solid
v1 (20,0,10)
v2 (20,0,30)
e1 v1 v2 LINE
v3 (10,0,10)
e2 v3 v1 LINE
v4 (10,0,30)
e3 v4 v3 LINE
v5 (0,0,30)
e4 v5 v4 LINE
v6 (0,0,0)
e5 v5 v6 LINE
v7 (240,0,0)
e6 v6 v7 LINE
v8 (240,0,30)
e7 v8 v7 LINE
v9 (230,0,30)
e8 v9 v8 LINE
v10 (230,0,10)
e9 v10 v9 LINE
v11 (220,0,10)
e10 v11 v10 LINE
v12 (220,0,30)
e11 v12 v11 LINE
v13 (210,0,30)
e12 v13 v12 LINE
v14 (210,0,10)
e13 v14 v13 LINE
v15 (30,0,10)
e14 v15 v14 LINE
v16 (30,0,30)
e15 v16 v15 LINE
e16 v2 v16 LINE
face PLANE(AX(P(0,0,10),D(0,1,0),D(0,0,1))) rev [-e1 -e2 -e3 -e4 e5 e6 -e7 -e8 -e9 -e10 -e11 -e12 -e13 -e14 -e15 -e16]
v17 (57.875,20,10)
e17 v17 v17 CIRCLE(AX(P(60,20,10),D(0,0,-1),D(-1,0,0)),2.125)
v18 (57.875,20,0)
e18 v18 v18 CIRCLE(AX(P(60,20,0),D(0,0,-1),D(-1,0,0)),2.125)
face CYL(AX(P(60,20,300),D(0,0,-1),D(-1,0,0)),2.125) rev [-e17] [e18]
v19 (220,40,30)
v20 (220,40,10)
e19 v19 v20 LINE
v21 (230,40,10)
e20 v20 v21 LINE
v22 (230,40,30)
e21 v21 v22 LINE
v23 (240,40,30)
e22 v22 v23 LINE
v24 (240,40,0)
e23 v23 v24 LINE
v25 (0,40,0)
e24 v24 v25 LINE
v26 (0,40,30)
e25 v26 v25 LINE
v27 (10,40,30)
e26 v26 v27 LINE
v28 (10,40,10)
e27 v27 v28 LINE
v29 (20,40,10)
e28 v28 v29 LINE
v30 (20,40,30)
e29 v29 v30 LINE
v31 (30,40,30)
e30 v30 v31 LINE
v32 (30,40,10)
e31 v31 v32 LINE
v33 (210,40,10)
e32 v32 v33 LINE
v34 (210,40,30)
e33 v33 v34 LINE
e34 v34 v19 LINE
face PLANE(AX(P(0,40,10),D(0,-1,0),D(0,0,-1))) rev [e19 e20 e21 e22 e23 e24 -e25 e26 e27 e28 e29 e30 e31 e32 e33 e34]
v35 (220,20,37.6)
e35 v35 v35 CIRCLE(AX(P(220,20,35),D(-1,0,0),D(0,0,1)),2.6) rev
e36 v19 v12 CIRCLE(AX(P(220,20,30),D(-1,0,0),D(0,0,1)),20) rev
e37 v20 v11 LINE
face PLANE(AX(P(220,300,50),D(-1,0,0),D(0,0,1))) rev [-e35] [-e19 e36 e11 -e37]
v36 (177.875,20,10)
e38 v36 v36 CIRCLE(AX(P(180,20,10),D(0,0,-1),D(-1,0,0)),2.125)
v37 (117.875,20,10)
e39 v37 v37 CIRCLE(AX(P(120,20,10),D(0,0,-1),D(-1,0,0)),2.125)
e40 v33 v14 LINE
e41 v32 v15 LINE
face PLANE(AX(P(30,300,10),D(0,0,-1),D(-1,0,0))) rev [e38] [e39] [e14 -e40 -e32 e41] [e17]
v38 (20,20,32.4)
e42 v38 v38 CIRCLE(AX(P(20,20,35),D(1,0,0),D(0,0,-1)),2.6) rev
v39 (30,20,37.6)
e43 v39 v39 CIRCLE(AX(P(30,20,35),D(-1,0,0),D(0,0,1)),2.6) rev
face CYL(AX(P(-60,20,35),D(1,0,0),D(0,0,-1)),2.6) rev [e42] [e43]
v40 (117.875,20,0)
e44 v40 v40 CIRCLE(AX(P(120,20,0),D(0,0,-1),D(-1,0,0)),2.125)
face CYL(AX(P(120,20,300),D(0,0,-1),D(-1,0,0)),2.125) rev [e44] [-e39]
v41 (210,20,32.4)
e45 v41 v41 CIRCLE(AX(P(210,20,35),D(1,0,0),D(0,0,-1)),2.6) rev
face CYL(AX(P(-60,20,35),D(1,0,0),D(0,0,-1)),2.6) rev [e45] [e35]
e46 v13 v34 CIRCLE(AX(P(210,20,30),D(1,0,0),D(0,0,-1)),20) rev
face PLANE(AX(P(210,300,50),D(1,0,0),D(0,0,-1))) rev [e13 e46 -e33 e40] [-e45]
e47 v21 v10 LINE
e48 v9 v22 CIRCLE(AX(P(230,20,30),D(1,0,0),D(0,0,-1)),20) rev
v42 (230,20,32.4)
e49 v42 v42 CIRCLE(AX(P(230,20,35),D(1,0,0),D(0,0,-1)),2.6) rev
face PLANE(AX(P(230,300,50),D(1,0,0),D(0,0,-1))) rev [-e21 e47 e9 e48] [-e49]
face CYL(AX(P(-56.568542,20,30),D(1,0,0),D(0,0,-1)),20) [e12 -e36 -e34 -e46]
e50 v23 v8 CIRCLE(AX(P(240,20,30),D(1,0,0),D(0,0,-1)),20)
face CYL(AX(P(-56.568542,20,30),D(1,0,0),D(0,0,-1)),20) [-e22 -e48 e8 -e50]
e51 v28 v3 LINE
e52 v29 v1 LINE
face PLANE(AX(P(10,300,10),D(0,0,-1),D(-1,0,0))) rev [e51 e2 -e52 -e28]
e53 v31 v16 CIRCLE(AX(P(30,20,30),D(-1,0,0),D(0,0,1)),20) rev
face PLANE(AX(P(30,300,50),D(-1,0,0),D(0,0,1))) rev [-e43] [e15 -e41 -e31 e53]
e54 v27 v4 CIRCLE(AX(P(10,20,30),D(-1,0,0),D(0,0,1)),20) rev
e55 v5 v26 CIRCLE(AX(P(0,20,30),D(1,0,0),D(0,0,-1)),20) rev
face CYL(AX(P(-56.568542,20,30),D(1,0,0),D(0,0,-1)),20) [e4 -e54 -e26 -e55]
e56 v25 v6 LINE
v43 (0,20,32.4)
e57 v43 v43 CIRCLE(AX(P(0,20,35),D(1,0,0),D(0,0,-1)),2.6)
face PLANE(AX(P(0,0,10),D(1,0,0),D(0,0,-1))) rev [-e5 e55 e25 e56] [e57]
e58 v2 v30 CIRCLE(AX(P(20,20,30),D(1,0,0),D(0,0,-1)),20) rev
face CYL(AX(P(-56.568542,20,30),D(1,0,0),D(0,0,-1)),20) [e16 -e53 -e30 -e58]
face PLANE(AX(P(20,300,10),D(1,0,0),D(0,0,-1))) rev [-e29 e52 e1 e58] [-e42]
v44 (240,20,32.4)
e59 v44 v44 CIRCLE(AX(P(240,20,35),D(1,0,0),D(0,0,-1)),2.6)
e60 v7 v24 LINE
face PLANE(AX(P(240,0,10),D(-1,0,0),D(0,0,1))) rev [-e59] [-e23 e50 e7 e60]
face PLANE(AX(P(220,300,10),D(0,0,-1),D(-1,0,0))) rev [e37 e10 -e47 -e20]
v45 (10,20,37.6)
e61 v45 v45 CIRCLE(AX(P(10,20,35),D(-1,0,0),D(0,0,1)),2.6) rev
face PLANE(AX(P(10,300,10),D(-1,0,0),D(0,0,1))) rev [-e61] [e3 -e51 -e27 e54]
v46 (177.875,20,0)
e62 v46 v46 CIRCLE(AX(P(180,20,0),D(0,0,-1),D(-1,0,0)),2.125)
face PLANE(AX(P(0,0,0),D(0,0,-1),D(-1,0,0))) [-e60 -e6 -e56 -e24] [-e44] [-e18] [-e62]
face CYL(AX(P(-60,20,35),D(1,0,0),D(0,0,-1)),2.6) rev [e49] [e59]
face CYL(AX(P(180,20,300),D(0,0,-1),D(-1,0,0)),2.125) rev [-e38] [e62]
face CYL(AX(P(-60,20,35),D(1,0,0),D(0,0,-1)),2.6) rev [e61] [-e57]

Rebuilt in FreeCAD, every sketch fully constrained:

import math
import FreeCAD as App
import Part
import Sketcher

V = App.Vector
Q = App.Units.Quantity

doc = App.newDocument("Part")
body = doc.addObject("PartDesign::Body", "Body")

sketch1 = doc.addObject("Sketcher::SketchObject", "Sketch")
body.addObject(sketch1)
sketch1.AttachmentSupport = (doc.XY_Plane, [""])
sketch1.MapMode = "FlatFace"
sketch1.addGeometry([
    Part.LineSegment(V(0, 40, 0), V(0, 0, 0)),
    Part.LineSegment(V(0, 0, 0), V(240, 0, 0)),
    Part.LineSegment(V(240, 0, 0), V(240, 40, 0)),
    Part.LineSegment(V(240, 40, 0), V(0, 40, 0)),
], False)
sketch1.addConstraint([
    Sketcher.Constraint("Coincident", 0, 2, 1, 1),
    Sketcher.Constraint("Coincident", 1, 2, 2, 1),
    Sketcher.Constraint("Coincident", 2, 2, 3, 1),
    Sketcher.Constraint("Coincident", 3, 2, 0, 1),
    Sketcher.Constraint("Vertical", 0),
    Sketcher.Constraint("Horizontal", 1),
    Sketcher.Constraint("Vertical", 2),
    Sketcher.Constraint("Horizontal", 3),
    Sketcher.Constraint("Coincident", 0, 2, -1, 1),
    Sketcher.Constraint("DistanceX", 1, 1, 1, 2, Q("240 mm")),
    Sketcher.Constraint("DistanceY", 0, 2, 0, 1, Q("40 mm")),
])
pad1 = doc.addObject("PartDesign::Pad", "Pad")
body.addObject(pad1)
pad1.Profile = sketch1
pad1.Length = 10

sketch2 = doc.addObject("Sketcher::SketchObject", "Sketch001")
body.addObject(sketch2)
sketch2.AttachmentSupport = (doc.YZ_Plane, [""])
sketch2.MapMode = "FlatFace"
sketch2.AttachmentOffset = App.Placement(V(0, 0, 240), App.Rotation())
sketch2.addGeometry([
    Part.LineSegment(V(0, 30, 0), V(0, 10, 0)),
    Part.LineSegment(V(0, 10, 0), V(40, 10, 0)),
    Part.LineSegment(V(40, 10, 0), V(40, 30, 0)),
    Part.ArcOfCircle(Part.Circle(V(20, 30, 0), V(0, 0, 1), 20), math.radians(0), math.radians(180)),
], False)
sketch2.addConstraint([
    Sketcher.Constraint("Coincident", 0, 2, 1, 1),
    Sketcher.Constraint("Coincident", 1, 2, 2, 1),
    Sketcher.Constraint("Tangent", 2, 2, 3, 1),
    Sketcher.Constraint("Tangent", 3, 2, 0, 1),
    Sketcher.Constraint("Vertical", 0),
    Sketcher.Constraint("Horizontal", 1),
    Sketcher.Constraint("Vertical", 2),
    Sketcher.Constraint("PointOnObject", 0, 2, -2),
    Sketcher.Constraint("Radius", 3, Q("20 mm")),
    Sketcher.Constraint("DistanceY", 0, 2, 0, 1, Q("20 mm")),
    Sketcher.Constraint("DistanceY", -1, 1, 3, 3, Q("30 mm")),
])
pad2 = doc.addObject("PartDesign::Pad", "Pad001")
body.addObject(pad2)
pad2.Profile = sketch2
pad2.Length = 240
pad2.Reversed = True

sketch3 = doc.addObject("Sketcher::SketchObject", "Sketch002")
body.addObject(sketch3)
sketch3.AttachmentSupport = (doc.YZ_Plane, [""])
sketch3.MapMode = "FlatFace"
sketch3.AttachmentOffset = App.Placement(V(0, 0, 240), App.Rotation())
sketch3.addGeometry(Part.Circle(V(20, 35, 0), V(0, 0, 1), 2.6), False)
sketch3.addConstraint([
    Sketcher.Constraint("Diameter", 0, Q("5.2 mm")),
    Sketcher.Constraint("DistanceX", -1, 1, 0, 3, Q("20 mm")),
    Sketcher.Constraint("DistanceY", -1, 1, 0, 3, Q("35 mm")),
])
pocket1 = doc.addObject("PartDesign::Pocket", "Pocket")
body.addObject(pocket1)
pocket1.Profile = sketch3
pocket1.Length = 300

sketch4 = doc.addObject("Sketcher::SketchObject", "Sketch003")
body.addObject(sketch4)
sketch4.AttachmentSupport = (doc.XZ_Plane, [""])
sketch4.MapMode = "FlatFace"
sketch4.addGeometry([
    Part.LineSegment(V(10, 50, 0), V(10, 10, 0)),
    Part.LineSegment(V(10, 10, 0), V(20, 10, 0)),
    Part.LineSegment(V(20, 10, 0), V(20, 50, 0)),
    Part.LineSegment(V(20, 50, 0), V(10, 50, 0)),
    Part.LineSegment(V(30, 50, 0), V(30, 10, 0)),
    Part.LineSegment(V(30, 10, 0), V(210, 10, 0)),
    Part.LineSegment(V(210, 10, 0), V(210, 50, 0)),
    Part.LineSegment(V(210, 50, 0), V(30, 50, 0)),
    Part.LineSegment(V(220, 50, 0), V(220, 10, 0)),
    Part.LineSegment(V(220, 10, 0), V(230, 10, 0)),
    Part.LineSegment(V(230, 10, 0), V(230, 50, 0)),
    Part.LineSegment(V(230, 50, 0), V(220, 50, 0)),
], False)
sketch4.addConstraint([
    Sketcher.Constraint("Coincident", 0, 2, 1, 1),
    Sketcher.Constraint("Coincident", 1, 2, 2, 1),
    Sketcher.Constraint("Coincident", 2, 2, 3, 1),
    Sketcher.Constraint("Coincident", 3, 2, 0, 1),
    Sketcher.Constraint("Coincident", 4, 2, 5, 1),
    Sketcher.Constraint("Coincident", 5, 2, 6, 1),
    Sketcher.Constraint("Coincident", 6, 2, 7, 1),
    Sketcher.Constraint("Coincident", 7, 2, 4, 1),
    Sketcher.Constraint("Coincident", 8, 2, 9, 1),
    Sketcher.Constraint("Coincident", 9, 2, 10, 1),
    Sketcher.Constraint("Coincident", 10, 2, 11, 1),
    Sketcher.Constraint("Coincident", 11, 2, 8, 1),
    Sketcher.Constraint("Vertical", 0),
    Sketcher.Constraint("Horizontal", 1),
    Sketcher.Constraint("Vertical", 2),
    Sketcher.Constraint("Horizontal", 3),
    Sketcher.Constraint("Vertical", 4),
    Sketcher.Constraint("Horizontal", 5),
    Sketcher.Constraint("Vertical", 6),
    Sketcher.Constraint("Horizontal", 7),
    Sketcher.Constraint("Vertical", 8),
    Sketcher.Constraint("Horizontal", 9),
    Sketcher.Constraint("Vertical", 10),
    Sketcher.Constraint("Horizontal", 11),
    Sketcher.Constraint("Horizontal", 1, 2, 4, 2),
    Sketcher.Constraint("Horizontal", 3, 2, 6, 2),
    Sketcher.Constraint("Horizontal", 5, 2, 8, 2),
    Sketcher.Constraint("Horizontal", 7, 2, 10, 2),
    Sketcher.Constraint("Equal", 3, 9),
    Sketcher.Constraint("DistanceX", 1, 1, 1, 2, Q("10 mm")),
    Sketcher.Constraint("DistanceX", 5, 1, 5, 2, Q("180 mm")),
    Sketcher.Constraint("DistanceY", 0, 2, 0, 1, Q("40 mm")),
    Sketcher.Constraint("DistanceX", -1, 1, 0, 2, Q("10 mm")),
    Sketcher.Constraint("DistanceY", -1, 1, 0, 2, Q("10 mm")),
    Sketcher.Constraint("DistanceX", -1, 1, 4, 2, Q("30 mm")),
    Sketcher.Constraint("DistanceX", -1, 1, 8, 2, Q("220 mm")),
])
pocket2 = doc.addObject("PartDesign::Pocket", "Pocket001")
body.addObject(pocket2)
pocket2.Profile = sketch4
pocket2.Length = 300

sketch5 = doc.addObject("Sketcher::SketchObject", "Sketch004")
body.addObject(sketch5)
sketch5.AttachmentSupport = (doc.XY_Plane, [""])
sketch5.MapMode = "FlatFace"
sketch5.addGeometry([
    Part.Circle(V(180, 20, 0), V(0, 0, 1), 2.1),
    Part.Circle(V(120, 20, 0), V(0, 0, 1), 2.1),
    Part.Circle(V(60, 20, 0), V(0, 0, 1), 2.1),
], False)
sketch5.addConstraint([
    Sketcher.Constraint("Equal", 0, 1),
    Sketcher.Constraint("Equal", 1, 2),
    Sketcher.Constraint("Horizontal", 0, 3, 1, 3),
    Sketcher.Constraint("Horizontal", 1, 3, 2, 3),
    Sketcher.Constraint("Diameter", 0, Q("4.25 mm")),
    Sketcher.Constraint("DistanceX", -1, 1, 0, 3, Q("180 mm")),
    Sketcher.Constraint("DistanceY", -1, 1, 0, 3, Q("20 mm")),
    Sketcher.Constraint("DistanceX", -1, 1, 1, 3, Q("120 mm")),
    Sketcher.Constraint("DistanceX", -1, 1, 2, 3, Q("60 mm")),
])
pocket3 = doc.addObject("PartDesign::Pocket", "Pocket002")
body.addObject(pocket3)
pocket3.Profile = sketch5
pocket3.Length = 300
pocket3.Reversed = True

doc.recompute()
